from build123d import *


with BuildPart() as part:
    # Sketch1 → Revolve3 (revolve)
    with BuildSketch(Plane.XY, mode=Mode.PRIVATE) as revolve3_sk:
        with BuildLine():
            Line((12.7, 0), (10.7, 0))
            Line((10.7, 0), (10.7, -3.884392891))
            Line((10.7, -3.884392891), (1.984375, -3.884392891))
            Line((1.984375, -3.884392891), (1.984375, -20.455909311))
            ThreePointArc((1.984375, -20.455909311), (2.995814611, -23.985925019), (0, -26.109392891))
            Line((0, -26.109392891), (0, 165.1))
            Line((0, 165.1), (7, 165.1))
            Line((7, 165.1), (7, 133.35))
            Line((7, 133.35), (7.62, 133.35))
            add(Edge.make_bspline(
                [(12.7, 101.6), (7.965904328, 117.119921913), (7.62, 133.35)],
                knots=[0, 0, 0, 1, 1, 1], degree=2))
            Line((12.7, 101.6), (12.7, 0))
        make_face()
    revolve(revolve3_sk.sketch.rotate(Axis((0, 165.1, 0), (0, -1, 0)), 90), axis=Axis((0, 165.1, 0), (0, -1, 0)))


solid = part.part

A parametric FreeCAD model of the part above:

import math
import FreeCAD as App
import Part
import Sketcher
Q = App.Units.Quantity

doc = App.newDocument("Part")
body = doc.addObject("PartDesign::Body", "Body")

# Sketch on XY plane
sketch1 = body.newObject("Sketcher::SketchObject", "Sketch")
sketch1.AttachmentSupport = (doc.getObject("XY_Plane"), [""])
sketch1.MapMode = "FlatFace"
sketch1.addGeometry([
    Part.LineSegment(App.Vector(10.7, 0, 0), App.Vector(12.7, 0, 0)),  # 0
    Part.LineSegment(App.Vector(12.7, 0, 0), App.Vector(12.7, 101.6, 0)),  # 1
    Part.BSplineCurve([App.Vector(12.7, 101.6, 0), App.Vector(7.965904, 117.119922, 0), App.Vector(7.62, 133.35, 0)], [3, 3], [0, 1], False, 2, [1, 1, 1], False),  # 2
    Part.LineSegment(App.Vector(7.62, 133.35, 0), App.Vector(7, 133.35, 0)),  # 3
    Part.LineSegment(App.Vector(7, 133.35, 0), App.Vector(7, 165.1, 0)),  # 4
    Part.LineSegment(App.Vector(7, 165.1, 0), App.Vector(0, 165.1, 0)),  # 5
    Part.LineSegment(App.Vector(0, 165.1, 0), App.Vector(0, -26.109393, 0)),  # 6
    Part.ArcOfCircle(Part.Circle(App.Vector(0, -22.934393, 0), App.Vector(0, 0, 1), 3.175), math.radians(-90), math.radians(51.317813)),  # 7
    Part.LineSegment(App.Vector(1.984375, -20.455909, 0), App.Vector(1.984375, -3.884393, 0)),  # 8
    Part.LineSegment(App.Vector(1.984375, -3.884393, 0), App.Vector(10.7, -3.884393, 0)),  # 9
    Part.LineSegment(App.Vector(10.7, -3.884393, 0), App.Vector(10.7, 0, 0)),  # 10
], False)
sketch1.addConstraint([
    Sketcher.Constraint("Block", 2),
    Sketcher.Constraint("Coincident", 0, 2, 1, 1),
    Sketcher.Constraint("Coincident", 1, 2, 2, 1),
    Sketcher.Constraint("Coincident", 2, 2, 3, 1),
    Sketcher.Constraint("Coincident", 3, 2, 4, 1),
    Sketcher.Constraint("Coincident", 4, 2, 5, 1),
    Sketcher.Constraint("Coincident", 5, 2, 6, 1),
    Sketcher.Constraint("Coincident", 6, 2, 7, 1),
    Sketcher.Constraint("Coincident", 7, 2, 8, 1),
    Sketcher.Constraint("Coincident", 8, 2, 9, 1),
    Sketcher.Constraint("Coincident", 9, 2, 10, 1),
    Sketcher.Constraint("Coincident", 10, 2, 0, 1),
    Sketcher.Constraint("Horizontal", 0),
    Sketcher.Constraint("Vertical", 1),
    Sketcher.Constraint("Horizontal", 3),
    Sketcher.Constraint("Vertical", 4),
    Sketcher.Constraint("Horizontal", 5),
    Sketcher.Constraint("Vertical", 6),
    Sketcher.Constraint("Vertical", 8),
    Sketcher.Constraint("Horizontal", 9),
    Sketcher.Constraint("Vertical", 10),
    Sketcher.Constraint("PointOnObject", 7, 3, -2),
    Sketcher.Constraint("PointOnObject", 0, 2, -1),
    Sketcher.Constraint("PointOnObject", 5, 2, -2),
    Sketcher.Constraint("Radius", 7, Q("0.125 in")),
    Sketcher.Constraint("DistanceY", 4, 1, 4, 2, Q("1.25 in")),
    Sketcher.Constraint("DistanceY", 7, 3, 8, 2, Q("0.75 in")),
    Sketcher.Constraint("DistanceX", -1, 1, 7, 2, Q("0.078125 in")),
    Sketcher.Constraint("DistanceX", 0, 1, 0, 2, Q("2 mm")),
    Sketcher.Constraint("DistanceX", 3, 2, 3, 1, Q("0.62 mm")),
    Sketcher.Constraint("DistanceY", 6, 2, 6, 1, Q("191.209393 mm")),
])
revolution = body.newObject("PartDesign::Revolution", "Revolution")
revolution.Profile = sketch1
revolution.ReferenceAxis = (sketch1, ["V_Axis"])
revolution.Angle = 360

doc.recompute()
